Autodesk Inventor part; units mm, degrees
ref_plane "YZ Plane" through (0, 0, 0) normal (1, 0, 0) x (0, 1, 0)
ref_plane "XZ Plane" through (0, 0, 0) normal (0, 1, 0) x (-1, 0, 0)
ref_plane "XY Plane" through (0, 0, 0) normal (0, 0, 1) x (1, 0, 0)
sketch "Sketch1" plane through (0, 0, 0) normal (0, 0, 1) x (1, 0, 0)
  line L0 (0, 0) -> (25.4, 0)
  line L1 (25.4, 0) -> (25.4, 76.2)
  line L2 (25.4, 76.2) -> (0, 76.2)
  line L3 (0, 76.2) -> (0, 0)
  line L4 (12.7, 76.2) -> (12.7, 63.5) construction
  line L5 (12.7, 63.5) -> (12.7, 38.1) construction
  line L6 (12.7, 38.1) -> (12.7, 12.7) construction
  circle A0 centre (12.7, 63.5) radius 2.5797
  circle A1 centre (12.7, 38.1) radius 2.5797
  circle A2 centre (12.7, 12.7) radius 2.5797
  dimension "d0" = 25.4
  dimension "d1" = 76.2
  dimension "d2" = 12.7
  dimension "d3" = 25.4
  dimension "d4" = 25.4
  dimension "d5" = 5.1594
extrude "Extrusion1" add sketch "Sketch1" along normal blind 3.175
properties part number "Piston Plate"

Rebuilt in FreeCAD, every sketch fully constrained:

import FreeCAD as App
import Part
import Sketcher

V = App.Vector
Q = App.Units.Quantity

doc = App.newDocument("Part")
params = doc.addObject("Spreadsheet::Sheet", "Params")
for row, (alias, value) in enumerate([
    ("sketch1_width", "1 in"),
    ("sketch1_height", "3 in"),
    ("sketch1_diameter", "0.203126 in"),
    ("pad1_length", "0.125 in"),
], start=1):
    params.set(f"A{row}", alias)
    params.set(f"B{row}", "=" + value)
    params.setAlias(f"B{row}", alias)

body = doc.addObject("PartDesign::Body", "Body")

sketch1 = body.newObject("Sketcher::SketchObject", "Sketch")
sketch1.AttachmentSupport = (doc.getObject("XY_Plane"), [""])
sketch1.MapMode = "FlatFace"
sketch1.addGeometry(Part.LineSegment(V(0, 76.2, 0), V(0, 0, 0)), False)
sketch1.addGeometry(Part.LineSegment(V(0, 0, 0), V(25.4, 0, 0)), False)
sketch1.addGeometry(Part.LineSegment(V(25.4, 0, 0), V(25.4, 76.2, 0)), False)
sketch1.addGeometry(Part.LineSegment(V(25.4, 76.2, 0), V(0, 76.2, 0)), False)
sketch1.addGeometry(Part.Circle(V(12.7, 12.7, 0), V(0, 0, 1), 2.6), False)
sketch1.addGeometry(Part.Circle(V(12.7, 38.1, 0), V(0, 0, 1), 2.6), False)
sketch1.addGeometry(Part.Circle(V(12.7, 63.5, 0), V(0, 0, 1), 2.6), False)
sketch1.addConstraint(Sketcher.Constraint("Coincident", 0, 2, 1, 1))
sketch1.addConstraint(Sketcher.Constraint("Coincident", 1, 2, 2, 1))
sketch1.addConstraint(Sketcher.Constraint("Coincident", 2, 2, 3, 1))
sketch1.addConstraint(Sketcher.Constraint("Coincident", 3, 2, 0, 1))
sketch1.addConstraint(Sketcher.Constraint("Vertical", 0))
sketch1.addConstraint(Sketcher.Constraint("Horizontal", 1))
sketch1.addConstraint(Sketcher.Constraint("Vertical", 2))
sketch1.addConstraint(Sketcher.Constraint("Horizontal", 3))
sketch1.addConstraint(Sketcher.Constraint("Coincident", 0, 2, -1, 1))
sketch1.addConstraint(Sketcher.Constraint("Equal", 4, 5))
sketch1.addConstraint(Sketcher.Constraint("Equal", 5, 6))
sketch1.addConstraint(Sketcher.Constraint("Vertical", 4, 3, 5, 3))
sketch1.addConstraint(Sketcher.Constraint("Vertical", 5, 3, 6, 3))
sketch1.addConstraint(Sketcher.Constraint("DistanceX", 1, 1, 1, 2, Q("1 in")))
sketch1.addConstraint(Sketcher.Constraint("DistanceY", 0, 2, 0, 1, Q("3 in")))
sketch1.addConstraint(Sketcher.Constraint("Diameter", 4, Q("0.203126 in")))
sketch1.addConstraint(Sketcher.Constraint("DistanceY", 4, 3, 5, 3, Q("1 in")))
sketch1.addConstraint(Sketcher.Constraint("DistanceY", 5, 3, 6, 3, Q("1 in")))
sketch1.addConstraint(Sketcher.Constraint("DistanceX", -1, 1, 4, 3, Q("0.5 in")))
sketch1.addConstraint(Sketcher.Constraint("DistanceY", -1, 1, 4, 3, Q("0.5 in")))
sketch1.setExpression("Constraints[13]", "Params.sketch1_width")
sketch1.setExpression("Constraints[14]", "Params.sketch1_height")
sketch1.setExpression("Constraints[15]", "Params.sketch1_diameter")
pad1 = body.newObject("PartDesign::Pad", "Pad")
pad1.Profile = sketch1
pad1.setExpression("Length", "Params.pad1_length")

doc.recompute()
